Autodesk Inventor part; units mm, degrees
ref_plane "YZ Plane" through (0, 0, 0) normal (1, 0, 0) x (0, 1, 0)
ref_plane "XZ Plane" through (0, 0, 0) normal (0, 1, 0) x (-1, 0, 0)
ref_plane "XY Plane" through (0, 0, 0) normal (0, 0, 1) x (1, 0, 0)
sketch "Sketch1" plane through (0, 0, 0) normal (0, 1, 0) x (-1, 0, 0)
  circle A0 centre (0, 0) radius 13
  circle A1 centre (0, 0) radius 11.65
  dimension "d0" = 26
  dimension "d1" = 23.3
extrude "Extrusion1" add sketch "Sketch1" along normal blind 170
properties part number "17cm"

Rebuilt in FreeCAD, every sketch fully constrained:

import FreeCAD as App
import Part
import Sketcher
Q = App.Units.Quantity

doc = App.newDocument("Part")
body = doc.addObject("PartDesign::Body", "Body")

# Sketch on XZ plane
sketch1 = doc.addObject("Sketcher::SketchObject", "Sketch")
body.addObject(sketch1)
sketch1.AttachmentSupport = (doc.XZ_Plane, [""])
sketch1.MapMode = "FlatFace"
sketch1.addGeometry([
    Part.Circle(App.Vector(0, 0, 0), App.Vector(0, 0, 1), 13),
    Part.Circle(App.Vector(0, 0, 0), App.Vector(0, 0, 1), 12),
], False)
sketch1.addConstraint([
    Sketcher.Constraint("Coincident", 0, 3, -1, 1),
    Sketcher.Constraint("Coincident", 1, 3, -1, 1),
    Sketcher.Constraint("Diameter", 0, Q("26 mm")),
    Sketcher.Constraint("Diameter", 1, Q("23.3 mm")),
])
pad1 = doc.addObject("PartDesign::Pad", "Pad")
body.addObject(pad1)
pad1.Profile = sketch1
pad1.Length = 170
pad1.Reversed = True

doc.recompute()
